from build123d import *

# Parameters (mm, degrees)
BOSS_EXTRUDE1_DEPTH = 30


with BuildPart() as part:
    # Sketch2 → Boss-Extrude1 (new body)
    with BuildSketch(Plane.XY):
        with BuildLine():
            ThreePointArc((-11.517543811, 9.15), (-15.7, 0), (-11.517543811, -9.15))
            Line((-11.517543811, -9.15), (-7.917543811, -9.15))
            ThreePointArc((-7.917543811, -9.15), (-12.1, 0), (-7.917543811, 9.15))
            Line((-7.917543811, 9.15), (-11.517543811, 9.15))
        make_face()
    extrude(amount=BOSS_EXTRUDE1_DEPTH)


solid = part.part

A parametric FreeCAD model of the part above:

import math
import FreeCAD as App
import Part
import Sketcher
Q = App.Units.Quantity

doc = App.newDocument("Part")
body = doc.addObject("PartDesign::Body", "Body")

# Sketch on XY plane
sketch1 = body.newObject("Sketcher::SketchObject", "Sketch")
sketch1.AttachmentSupport = (doc.getObject("XY_Plane"), [""])
sketch1.MapMode = "FlatFace"
sketch1.addGeometry([
    Part.ArcOfCircle(Part.Circle(App.Vector(-3.6, 0, 0), App.Vector(0, 0, 1), 12.1), math.radians(131), math.radians(229)),
    Part.LineSegment(App.Vector(-11.5, -9.2, 0), App.Vector(-7.9, -9.2, 0)),
    Part.ArcOfCircle(Part.Circle(App.Vector(0, 0, 0), App.Vector(0, 0, 1), 12.1), math.radians(131), math.radians(229)),
    Part.LineSegment(App.Vector(-7.9, 9.2, 0), App.Vector(-11.5, 9.2, 0)),
], False)
sketch1.addConstraint([
    Sketcher.Constraint("Coincident", 0, 2, 1, 1),
    Sketcher.Constraint("Coincident", 1, 2, 2, 2),
    Sketcher.Constraint("Coincident", 2, 1, 3, 1),
    Sketcher.Constraint("Coincident", 3, 2, 0, 1),
    Sketcher.Constraint("Horizontal", 1),
    Sketcher.Constraint("Horizontal", 3),
    Sketcher.Constraint("Coincident", 2, 3, -1, 1),
    Sketcher.Constraint("Equal", 0, 2),
    Sketcher.Constraint("Symmetric", 0, 2, 3, 2, -1),
    Sketcher.Constraint("Radius", 0, Q("12.1 mm")),
    Sketcher.Constraint("DistanceX", 1, 1, 1, 2, Q("3.6 mm")),
    Sketcher.Constraint("DistanceY", 1, 2, 2, 1, Q("18.3 mm")),
])
pad1 = body.newObject("PartDesign::Pad", "Pad")
pad1.Profile = sketch1
pad1.Length = 30

doc.recompute()
